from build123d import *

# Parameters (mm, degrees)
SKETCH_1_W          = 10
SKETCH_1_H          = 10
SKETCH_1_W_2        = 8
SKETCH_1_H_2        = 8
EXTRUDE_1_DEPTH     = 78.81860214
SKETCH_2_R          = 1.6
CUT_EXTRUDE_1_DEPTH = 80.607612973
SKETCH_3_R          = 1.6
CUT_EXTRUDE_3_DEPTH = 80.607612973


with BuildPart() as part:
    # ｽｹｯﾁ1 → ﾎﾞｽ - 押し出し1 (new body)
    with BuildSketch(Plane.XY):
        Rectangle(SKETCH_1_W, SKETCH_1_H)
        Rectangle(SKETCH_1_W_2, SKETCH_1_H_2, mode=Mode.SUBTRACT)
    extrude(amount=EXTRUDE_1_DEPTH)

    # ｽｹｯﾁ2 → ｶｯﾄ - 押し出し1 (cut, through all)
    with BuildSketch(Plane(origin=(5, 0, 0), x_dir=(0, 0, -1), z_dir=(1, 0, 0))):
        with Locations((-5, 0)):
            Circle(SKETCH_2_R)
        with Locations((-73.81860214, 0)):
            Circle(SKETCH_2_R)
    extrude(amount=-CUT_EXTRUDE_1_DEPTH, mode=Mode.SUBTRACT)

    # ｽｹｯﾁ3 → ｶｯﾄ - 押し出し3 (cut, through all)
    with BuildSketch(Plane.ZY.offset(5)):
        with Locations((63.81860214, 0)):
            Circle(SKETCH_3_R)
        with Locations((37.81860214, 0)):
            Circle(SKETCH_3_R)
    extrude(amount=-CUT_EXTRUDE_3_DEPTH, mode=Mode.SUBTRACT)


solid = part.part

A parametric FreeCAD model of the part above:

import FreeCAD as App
import Part
import Sketcher
from FreeCAD import Vector

doc = App.newDocument("Part")
body = doc.addObject("PartDesign::Body", "Body")

# Sketch on XY plane
sketch1 = doc.addObject("Sketcher::SketchObject", "Sketch")
body.addObject(sketch1)
sketch1.AttachmentSupport = (doc.XY_Plane, [""])
sketch1.MapMode = "FlatFace"
sketch1.addGeometry([
    Part.LineSegment(Vector(-5, 5, 0), Vector(-5, -5, 0)),  # 0
    Part.LineSegment(Vector(-5, -5, 0), Vector(5, -5, 0)),  # 1
    Part.LineSegment(Vector(5, -5, 0), Vector(5, 5, 0)),  # 2
    Part.LineSegment(Vector(5, 5, 0), Vector(-5, 5, 0)),  # 3
    Part.LineSegment(Vector(4, -4, 0), Vector(-4, -4, 0)),  # 4
    Part.LineSegment(Vector(-4, -4, 0), Vector(-4, 4, 0)),  # 5
    Part.LineSegment(Vector(-4, 4, 0), Vector(4, 4, 0)),  # 6
    Part.LineSegment(Vector(4, 4, 0), Vector(4, -4, 0)),  # 7
], False)
sketch1.addConstraint([
    Sketcher.Constraint("Coincident", 0, 2, 1, 1),
    Sketcher.Constraint("Coincident", 1, 2, 2, 1),
    Sketcher.Constraint("Coincident", 2, 2, 3, 1),
    Sketcher.Constraint("Coincident", 3, 2, 0, 1),
    Sketcher.Constraint("Coincident", 4, 2, 5, 1),
    Sketcher.Constraint("Coincident", 5, 2, 6, 1),
    Sketcher.Constraint("Coincident", 6, 2, 7, 1),
    Sketcher.Constraint("Coincident", 7, 2, 4, 1),
    Sketcher.Constraint("Vertical", 0),
    Sketcher.Constraint("Horizontal", 1),
    Sketcher.Constraint("Vertical", 2),
    Sketcher.Constraint("Horizontal", 3),
    Sketcher.Constraint("Horizontal", 4),
    Sketcher.Constraint("Vertical", 5),
    Sketcher.Constraint("Horizontal", 6),
    Sketcher.Constraint("Vertical", 7),
    Sketcher.Constraint("Symmetric", 0, 2, 2, 2, -1, 1),
    Sketcher.Constraint("Symmetric", 4, 2, 6, 2, -1, 1),
    Sketcher.Constraint("Equal", 3, 0),
    Sketcher.Constraint("Equal", 6, 5),
    Sketcher.Constraint("DistanceX", 1, 1, 1, 2, 10.0),
    Sketcher.Constraint("DistanceX", 4, 2, 4, 1, 8.0),
])
pad1 = doc.addObject("PartDesign::Pad", "Pad")
body.addObject(pad1)
pad1.Profile = sketch1
pad1.Length = 78.818602

# Sketch on YZ plane
sketch2 = doc.addObject("Sketcher::SketchObject", "Sketch001")
body.addObject(sketch2)
sketch2.AttachmentSupport = (doc.YZ_Plane, [""])
sketch2.MapMode = "FlatFace"
sketch2.AttachmentOffset = App.Placement(Vector(0, 0, 5), App.Rotation())
sketch2.addGeometry([
    Part.Circle(Vector(0, 5, 0), Vector(0, 0, 1), 1.6),
    Part.Circle(Vector(0, 73.8, 0), Vector(0, 0, 1), 1.6),
], False)
sketch2.addConstraint([
    Sketcher.Constraint("Equal", 0, 1),
    Sketcher.Constraint("PointOnObject", 0, 3, -2),
    Sketcher.Constraint("PointOnObject", 1, 3, -2),
    Sketcher.Constraint("Diameter", 0, 3.2),
    Sketcher.Constraint("DistanceY", -1, 1, 0, 3, 5.0),
    Sketcher.Constraint("DistanceY", -1, 1, 1, 3, 73.818602),
])
pocket1 = doc.addObject("PartDesign::Pocket", "Pocket")
body.addObject(pocket1)
pocket1.Profile = sketch2
pocket1.Type = "ThroughAll"

# Sketch on YZ plane
sketch3 = doc.addObject("Sketcher::SketchObject", "Sketch002")
body.addObject(sketch3)
sketch3.AttachmentSupport = (doc.YZ_Plane, [""])
sketch3.MapMode = "FlatFace"
sketch3.AttachmentOffset = App.Placement(Vector(0, 0, -5), App.Rotation())
sketch3.addGeometry([
    Part.Circle(Vector(0, 63.8, 0), Vector(0, 0, 1), 1.6),
    Part.Circle(Vector(0, 37.8, 0), Vector(0, 0, 1), 1.6),
], False)
sketch3.addConstraint([
    Sketcher.Constraint("Equal", 0, 1),
    Sketcher.Constraint("PointOnObject", 0, 3, -2),
    Sketcher.Constraint("PointOnObject", 1, 3, -2),
    Sketcher.Constraint("Diameter", 0, 3.2),
    Sketcher.Constraint("DistanceY", 1, 3, 0, 3, 26.0),
    Sketcher.Constraint("DistanceY", -1, 1, 0, 3, 63.818602),
])
pocket2 = doc.addObject("PartDesign::Pocket", "Pocket001")
body.addObject(pocket2)
pocket2.Profile = sketch3
pocket2.Type = "ThroughAll"
pocket2.Reversed = True

doc.recompute()
